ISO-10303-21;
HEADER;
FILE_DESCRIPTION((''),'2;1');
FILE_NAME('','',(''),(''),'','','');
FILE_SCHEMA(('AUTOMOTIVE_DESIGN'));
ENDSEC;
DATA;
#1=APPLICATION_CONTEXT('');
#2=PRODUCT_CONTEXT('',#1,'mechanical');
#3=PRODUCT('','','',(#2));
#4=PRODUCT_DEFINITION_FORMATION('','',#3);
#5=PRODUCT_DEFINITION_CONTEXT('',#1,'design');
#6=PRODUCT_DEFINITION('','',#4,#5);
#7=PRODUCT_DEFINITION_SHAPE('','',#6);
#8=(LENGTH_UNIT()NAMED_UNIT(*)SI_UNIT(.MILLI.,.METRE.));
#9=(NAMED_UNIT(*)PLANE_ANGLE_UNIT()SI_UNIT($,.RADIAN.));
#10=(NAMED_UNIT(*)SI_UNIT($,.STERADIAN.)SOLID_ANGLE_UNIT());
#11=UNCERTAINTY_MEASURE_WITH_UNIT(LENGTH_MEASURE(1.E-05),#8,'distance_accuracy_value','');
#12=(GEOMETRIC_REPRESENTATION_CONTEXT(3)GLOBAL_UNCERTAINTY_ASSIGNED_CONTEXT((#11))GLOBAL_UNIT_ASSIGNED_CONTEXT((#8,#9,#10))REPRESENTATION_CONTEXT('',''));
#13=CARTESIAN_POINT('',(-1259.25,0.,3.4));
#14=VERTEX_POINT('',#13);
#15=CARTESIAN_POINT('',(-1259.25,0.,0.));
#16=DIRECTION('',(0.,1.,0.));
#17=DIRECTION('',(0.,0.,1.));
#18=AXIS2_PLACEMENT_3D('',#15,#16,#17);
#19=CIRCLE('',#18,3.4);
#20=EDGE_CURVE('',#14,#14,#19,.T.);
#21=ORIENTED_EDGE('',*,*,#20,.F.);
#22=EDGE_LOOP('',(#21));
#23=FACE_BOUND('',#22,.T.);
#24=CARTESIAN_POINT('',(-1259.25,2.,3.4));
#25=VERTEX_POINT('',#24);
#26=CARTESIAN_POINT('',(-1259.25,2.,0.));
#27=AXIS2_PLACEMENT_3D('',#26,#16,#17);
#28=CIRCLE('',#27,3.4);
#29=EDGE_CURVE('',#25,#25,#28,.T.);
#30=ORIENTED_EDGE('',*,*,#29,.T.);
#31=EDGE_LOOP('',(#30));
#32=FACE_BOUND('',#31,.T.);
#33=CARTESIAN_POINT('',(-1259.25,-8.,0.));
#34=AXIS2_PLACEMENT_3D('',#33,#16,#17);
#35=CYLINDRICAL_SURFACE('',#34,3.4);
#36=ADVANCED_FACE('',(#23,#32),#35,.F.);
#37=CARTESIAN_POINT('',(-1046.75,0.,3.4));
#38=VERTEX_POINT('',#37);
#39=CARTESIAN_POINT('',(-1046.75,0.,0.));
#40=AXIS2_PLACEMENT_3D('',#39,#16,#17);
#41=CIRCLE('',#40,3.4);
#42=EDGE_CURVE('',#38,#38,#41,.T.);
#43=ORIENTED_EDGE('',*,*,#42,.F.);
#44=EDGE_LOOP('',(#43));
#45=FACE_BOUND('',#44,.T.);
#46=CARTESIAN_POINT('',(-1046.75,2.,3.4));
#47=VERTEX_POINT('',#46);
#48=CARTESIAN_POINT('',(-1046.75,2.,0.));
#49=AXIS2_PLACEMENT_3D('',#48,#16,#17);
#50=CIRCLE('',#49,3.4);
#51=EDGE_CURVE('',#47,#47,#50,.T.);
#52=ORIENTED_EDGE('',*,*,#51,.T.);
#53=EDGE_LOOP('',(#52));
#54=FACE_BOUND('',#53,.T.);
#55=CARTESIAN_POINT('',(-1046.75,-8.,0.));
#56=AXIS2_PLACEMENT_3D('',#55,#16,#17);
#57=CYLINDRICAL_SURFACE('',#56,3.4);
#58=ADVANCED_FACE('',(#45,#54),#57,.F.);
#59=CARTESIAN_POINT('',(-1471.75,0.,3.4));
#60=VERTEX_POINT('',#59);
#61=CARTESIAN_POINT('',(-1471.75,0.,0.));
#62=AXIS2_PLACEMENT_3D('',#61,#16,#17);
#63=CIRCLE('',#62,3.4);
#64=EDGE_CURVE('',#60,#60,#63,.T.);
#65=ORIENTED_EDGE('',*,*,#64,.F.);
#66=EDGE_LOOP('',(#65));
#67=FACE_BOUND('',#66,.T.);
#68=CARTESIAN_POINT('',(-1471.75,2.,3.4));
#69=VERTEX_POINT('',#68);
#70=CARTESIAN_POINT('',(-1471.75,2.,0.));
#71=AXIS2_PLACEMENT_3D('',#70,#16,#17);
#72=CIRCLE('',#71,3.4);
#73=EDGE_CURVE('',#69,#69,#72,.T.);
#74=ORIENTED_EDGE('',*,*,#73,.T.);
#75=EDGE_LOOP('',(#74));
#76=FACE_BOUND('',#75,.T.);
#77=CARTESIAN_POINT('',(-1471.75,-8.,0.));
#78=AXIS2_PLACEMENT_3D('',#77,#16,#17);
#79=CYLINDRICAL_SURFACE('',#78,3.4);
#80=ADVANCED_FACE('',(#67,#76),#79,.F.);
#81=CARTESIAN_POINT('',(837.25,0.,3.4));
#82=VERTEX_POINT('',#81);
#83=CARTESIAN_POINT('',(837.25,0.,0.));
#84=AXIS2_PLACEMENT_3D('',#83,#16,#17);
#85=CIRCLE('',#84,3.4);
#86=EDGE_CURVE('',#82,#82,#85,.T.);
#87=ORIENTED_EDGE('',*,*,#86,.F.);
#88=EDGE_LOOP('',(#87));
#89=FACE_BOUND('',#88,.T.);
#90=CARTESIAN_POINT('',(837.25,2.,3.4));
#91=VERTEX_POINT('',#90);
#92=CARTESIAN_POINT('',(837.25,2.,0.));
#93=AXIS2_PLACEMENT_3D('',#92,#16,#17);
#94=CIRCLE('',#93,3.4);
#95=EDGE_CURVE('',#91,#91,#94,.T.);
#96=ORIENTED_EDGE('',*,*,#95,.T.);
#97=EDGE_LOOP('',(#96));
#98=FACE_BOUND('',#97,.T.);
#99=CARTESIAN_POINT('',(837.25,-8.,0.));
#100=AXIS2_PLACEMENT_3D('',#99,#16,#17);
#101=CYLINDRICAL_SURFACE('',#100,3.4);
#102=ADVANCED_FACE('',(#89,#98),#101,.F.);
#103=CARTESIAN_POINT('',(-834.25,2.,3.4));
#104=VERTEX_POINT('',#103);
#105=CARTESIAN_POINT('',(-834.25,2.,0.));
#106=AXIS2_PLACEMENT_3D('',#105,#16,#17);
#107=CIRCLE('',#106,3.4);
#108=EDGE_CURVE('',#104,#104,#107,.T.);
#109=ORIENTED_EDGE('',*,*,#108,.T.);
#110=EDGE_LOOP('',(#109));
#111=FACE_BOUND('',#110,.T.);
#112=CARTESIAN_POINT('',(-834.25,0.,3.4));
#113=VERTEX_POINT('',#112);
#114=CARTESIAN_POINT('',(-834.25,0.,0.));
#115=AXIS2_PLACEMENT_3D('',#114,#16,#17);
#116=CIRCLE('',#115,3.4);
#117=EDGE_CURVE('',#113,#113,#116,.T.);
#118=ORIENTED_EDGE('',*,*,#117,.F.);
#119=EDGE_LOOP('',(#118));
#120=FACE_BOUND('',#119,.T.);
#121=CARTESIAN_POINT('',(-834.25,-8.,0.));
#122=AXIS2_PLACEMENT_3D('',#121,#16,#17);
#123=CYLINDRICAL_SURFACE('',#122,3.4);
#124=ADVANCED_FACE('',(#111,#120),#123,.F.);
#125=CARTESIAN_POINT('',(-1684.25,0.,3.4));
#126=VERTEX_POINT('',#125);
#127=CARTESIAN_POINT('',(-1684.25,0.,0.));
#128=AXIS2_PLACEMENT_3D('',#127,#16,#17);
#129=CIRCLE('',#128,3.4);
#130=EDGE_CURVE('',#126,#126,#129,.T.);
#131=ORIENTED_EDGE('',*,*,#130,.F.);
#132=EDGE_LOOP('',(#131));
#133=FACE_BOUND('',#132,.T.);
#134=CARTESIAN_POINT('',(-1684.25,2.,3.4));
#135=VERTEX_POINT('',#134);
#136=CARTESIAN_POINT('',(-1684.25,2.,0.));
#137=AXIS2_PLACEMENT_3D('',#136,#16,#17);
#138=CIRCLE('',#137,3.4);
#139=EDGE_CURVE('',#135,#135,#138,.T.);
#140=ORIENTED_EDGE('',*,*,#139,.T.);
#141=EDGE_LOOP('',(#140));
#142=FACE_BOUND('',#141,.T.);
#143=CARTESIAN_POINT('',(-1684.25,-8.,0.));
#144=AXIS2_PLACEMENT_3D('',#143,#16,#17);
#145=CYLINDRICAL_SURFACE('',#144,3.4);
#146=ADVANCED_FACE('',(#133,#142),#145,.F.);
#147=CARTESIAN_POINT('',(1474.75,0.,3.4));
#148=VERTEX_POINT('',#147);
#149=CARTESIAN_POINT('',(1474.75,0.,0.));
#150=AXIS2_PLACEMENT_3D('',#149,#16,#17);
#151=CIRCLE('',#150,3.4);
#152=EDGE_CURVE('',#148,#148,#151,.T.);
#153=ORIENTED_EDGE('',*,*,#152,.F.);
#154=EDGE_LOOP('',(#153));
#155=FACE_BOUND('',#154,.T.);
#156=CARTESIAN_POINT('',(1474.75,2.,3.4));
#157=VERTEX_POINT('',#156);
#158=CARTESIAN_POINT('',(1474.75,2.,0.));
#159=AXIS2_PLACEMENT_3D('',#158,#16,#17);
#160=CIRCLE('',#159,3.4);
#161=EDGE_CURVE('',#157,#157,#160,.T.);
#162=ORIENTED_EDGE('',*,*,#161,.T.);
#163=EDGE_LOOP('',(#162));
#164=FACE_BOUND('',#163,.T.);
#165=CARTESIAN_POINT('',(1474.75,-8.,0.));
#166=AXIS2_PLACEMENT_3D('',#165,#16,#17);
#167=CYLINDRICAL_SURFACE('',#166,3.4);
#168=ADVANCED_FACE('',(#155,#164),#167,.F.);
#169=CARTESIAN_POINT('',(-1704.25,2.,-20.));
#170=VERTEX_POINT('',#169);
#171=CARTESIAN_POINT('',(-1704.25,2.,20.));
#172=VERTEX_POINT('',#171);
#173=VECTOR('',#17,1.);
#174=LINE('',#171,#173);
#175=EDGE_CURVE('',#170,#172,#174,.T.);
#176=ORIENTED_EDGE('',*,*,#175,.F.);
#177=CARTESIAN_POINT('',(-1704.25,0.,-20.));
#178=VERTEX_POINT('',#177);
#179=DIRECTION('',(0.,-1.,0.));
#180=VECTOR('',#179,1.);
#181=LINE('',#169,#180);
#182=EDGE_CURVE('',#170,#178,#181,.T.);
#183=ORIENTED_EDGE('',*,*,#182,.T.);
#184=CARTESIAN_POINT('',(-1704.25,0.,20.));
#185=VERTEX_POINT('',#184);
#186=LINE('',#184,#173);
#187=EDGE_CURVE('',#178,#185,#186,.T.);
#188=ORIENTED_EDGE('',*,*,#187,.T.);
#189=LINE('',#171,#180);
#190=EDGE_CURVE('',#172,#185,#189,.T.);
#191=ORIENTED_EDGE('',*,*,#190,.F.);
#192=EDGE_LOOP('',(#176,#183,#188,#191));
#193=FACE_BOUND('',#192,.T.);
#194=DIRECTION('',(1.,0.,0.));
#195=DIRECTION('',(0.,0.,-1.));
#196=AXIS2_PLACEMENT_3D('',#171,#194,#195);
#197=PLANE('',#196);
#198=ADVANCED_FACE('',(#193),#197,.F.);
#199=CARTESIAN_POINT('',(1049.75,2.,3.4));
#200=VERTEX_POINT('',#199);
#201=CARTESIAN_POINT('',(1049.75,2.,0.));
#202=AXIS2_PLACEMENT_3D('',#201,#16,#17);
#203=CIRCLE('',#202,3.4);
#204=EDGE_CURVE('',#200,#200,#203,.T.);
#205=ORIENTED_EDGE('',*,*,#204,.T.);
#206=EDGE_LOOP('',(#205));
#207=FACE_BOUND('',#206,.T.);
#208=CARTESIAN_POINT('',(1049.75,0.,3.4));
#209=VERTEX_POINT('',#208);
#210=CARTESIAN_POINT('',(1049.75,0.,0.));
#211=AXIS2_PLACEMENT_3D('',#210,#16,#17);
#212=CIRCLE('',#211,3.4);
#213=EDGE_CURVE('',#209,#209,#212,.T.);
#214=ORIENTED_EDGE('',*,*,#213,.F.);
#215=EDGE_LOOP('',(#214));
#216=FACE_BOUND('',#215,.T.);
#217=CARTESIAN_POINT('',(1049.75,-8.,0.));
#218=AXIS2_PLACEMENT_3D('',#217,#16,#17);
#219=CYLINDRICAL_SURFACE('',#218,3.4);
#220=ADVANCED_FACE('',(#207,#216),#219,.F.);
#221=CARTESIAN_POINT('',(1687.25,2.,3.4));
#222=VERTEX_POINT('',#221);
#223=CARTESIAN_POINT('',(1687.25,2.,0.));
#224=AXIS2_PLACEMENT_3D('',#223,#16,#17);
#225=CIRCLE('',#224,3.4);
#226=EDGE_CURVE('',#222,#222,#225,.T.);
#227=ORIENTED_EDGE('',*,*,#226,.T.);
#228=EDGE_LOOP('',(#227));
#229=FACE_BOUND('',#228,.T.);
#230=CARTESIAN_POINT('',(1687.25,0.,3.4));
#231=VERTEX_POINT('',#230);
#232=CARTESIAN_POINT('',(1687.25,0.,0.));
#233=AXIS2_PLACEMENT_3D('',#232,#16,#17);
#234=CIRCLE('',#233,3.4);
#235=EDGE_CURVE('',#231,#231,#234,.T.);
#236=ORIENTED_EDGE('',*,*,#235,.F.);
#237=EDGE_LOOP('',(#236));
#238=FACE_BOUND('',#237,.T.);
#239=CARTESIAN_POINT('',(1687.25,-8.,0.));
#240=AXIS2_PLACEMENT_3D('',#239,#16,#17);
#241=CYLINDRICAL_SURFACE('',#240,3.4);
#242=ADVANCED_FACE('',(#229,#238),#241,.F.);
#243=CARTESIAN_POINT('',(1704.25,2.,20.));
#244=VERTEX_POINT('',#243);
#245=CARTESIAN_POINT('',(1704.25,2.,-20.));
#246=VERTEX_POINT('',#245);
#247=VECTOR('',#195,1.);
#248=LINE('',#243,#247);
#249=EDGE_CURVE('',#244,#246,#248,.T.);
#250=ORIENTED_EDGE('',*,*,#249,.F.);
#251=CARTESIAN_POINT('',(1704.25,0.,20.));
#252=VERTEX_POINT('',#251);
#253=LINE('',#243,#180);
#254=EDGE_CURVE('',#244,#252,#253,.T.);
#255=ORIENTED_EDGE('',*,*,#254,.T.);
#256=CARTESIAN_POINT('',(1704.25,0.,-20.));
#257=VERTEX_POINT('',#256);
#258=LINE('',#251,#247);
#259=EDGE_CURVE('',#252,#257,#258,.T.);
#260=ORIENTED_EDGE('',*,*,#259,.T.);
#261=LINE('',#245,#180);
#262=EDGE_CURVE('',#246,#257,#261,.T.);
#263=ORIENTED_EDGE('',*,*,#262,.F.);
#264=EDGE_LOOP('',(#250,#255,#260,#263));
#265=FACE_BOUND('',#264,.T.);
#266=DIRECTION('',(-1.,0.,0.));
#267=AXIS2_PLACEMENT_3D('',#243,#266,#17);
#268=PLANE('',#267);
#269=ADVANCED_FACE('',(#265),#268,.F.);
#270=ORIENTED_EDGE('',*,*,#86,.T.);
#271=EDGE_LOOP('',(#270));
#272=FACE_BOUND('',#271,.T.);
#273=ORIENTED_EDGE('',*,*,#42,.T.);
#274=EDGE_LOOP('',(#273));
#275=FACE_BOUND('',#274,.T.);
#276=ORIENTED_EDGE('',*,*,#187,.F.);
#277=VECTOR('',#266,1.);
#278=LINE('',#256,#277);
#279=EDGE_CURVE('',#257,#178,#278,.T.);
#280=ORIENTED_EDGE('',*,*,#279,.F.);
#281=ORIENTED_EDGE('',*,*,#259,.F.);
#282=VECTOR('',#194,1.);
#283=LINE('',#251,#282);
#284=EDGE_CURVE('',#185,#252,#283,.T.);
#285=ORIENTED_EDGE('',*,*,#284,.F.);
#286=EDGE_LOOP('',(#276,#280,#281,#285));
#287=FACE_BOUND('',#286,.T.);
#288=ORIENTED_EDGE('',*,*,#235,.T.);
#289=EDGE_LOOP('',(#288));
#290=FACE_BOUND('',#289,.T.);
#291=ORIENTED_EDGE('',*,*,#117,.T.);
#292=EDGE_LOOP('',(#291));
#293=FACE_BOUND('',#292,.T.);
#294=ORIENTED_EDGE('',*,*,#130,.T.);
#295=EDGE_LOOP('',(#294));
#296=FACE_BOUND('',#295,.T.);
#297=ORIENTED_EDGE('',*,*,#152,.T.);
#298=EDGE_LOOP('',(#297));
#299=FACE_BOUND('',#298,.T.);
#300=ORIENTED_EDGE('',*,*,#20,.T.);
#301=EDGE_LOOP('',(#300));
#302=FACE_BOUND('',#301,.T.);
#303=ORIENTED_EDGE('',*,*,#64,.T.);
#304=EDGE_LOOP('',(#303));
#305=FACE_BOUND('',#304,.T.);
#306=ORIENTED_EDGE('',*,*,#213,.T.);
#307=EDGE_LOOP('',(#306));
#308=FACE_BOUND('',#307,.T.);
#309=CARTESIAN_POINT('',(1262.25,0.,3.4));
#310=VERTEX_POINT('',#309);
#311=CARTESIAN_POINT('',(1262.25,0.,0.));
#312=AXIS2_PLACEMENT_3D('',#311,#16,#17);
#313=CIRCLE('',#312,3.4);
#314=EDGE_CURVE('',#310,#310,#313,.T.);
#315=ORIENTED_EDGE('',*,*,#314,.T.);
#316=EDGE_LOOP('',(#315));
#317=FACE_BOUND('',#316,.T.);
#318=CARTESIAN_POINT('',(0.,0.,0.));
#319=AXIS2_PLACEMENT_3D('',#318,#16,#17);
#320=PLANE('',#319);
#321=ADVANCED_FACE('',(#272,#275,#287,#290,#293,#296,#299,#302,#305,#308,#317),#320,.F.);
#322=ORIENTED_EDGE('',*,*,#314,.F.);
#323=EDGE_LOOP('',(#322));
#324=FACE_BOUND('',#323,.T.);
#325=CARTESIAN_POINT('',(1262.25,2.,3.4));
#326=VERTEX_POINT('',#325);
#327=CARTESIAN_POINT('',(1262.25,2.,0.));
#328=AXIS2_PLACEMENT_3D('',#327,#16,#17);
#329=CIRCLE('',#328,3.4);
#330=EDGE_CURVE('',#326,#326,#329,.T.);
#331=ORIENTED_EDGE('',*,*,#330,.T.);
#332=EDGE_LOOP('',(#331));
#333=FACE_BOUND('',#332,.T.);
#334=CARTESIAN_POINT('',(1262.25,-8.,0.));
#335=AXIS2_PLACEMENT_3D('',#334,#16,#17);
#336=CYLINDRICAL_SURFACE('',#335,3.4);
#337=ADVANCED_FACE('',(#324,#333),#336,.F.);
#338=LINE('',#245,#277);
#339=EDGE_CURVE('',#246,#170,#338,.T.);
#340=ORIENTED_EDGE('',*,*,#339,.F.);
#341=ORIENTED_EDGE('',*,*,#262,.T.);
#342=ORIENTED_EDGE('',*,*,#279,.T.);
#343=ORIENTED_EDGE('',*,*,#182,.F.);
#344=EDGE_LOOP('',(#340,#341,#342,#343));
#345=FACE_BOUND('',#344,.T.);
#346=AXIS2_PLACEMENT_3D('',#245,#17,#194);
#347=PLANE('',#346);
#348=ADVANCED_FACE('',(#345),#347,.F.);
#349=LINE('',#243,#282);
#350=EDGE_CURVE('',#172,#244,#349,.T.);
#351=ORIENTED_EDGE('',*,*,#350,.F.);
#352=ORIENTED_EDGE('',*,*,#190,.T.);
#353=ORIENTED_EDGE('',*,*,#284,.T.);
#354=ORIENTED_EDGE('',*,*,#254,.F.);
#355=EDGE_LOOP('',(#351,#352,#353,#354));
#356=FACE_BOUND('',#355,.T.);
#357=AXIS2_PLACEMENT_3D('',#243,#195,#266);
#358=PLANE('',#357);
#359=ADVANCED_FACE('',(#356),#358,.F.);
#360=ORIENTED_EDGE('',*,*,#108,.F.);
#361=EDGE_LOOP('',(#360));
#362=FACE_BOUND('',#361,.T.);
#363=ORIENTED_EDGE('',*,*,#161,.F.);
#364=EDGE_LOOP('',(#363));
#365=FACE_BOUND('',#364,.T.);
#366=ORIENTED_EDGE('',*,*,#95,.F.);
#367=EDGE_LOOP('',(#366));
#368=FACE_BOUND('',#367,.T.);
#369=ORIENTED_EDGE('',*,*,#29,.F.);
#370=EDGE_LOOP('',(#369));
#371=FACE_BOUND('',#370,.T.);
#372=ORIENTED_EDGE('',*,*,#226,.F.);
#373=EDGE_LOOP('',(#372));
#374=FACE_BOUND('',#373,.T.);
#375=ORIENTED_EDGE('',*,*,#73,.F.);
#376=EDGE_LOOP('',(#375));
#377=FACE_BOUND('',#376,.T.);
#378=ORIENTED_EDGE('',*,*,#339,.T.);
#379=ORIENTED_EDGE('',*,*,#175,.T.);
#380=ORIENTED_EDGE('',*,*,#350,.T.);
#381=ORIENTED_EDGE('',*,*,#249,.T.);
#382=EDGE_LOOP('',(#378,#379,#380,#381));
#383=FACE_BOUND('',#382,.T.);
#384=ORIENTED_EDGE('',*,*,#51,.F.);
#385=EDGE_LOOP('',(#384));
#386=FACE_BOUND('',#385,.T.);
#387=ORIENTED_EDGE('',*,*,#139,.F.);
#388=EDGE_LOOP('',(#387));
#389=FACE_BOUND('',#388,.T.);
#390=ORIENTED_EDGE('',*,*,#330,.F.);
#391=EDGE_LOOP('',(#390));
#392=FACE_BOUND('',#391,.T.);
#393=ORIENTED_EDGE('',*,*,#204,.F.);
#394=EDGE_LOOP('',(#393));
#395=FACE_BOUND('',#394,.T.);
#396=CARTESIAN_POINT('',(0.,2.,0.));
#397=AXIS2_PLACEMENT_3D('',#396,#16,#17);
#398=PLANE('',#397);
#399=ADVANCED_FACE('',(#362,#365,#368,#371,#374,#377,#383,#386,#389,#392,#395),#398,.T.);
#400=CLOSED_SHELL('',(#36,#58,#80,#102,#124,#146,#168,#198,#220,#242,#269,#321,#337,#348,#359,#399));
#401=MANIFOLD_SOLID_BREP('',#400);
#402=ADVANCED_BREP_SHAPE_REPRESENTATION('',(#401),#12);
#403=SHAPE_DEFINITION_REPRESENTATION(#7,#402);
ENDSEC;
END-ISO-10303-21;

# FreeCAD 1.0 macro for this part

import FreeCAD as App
import Part
import Sketcher

V = App.Vector
Q = App.Units.Quantity


def add_polygon(sketch, points):
    """Adds a closed chain of lines whose ends are joined by coincident constraints."""
    first, n = sketch.GeometryCount, len(points)
    for a, b in zip(points, points[1:] + points[:1]):
        sketch.addGeometry(Part.LineSegment(App.Vector(*a, 0), App.Vector(*b, 0)), False)
    for i in range(n):
        sketch.addConstraint(Sketcher.Constraint("Coincident", first + i, 2, first + (i + 1) % n, 1))

doc = App.newDocument("Part")
body = doc.addObject("PartDesign::Body", "Body")

sketch1 = doc.addObject("Sketcher::SketchObject", "Sketch")
body.addObject(sketch1)
sketch1.AttachmentSupport = (doc.XZ_Plane, [""])
sketch1.MapMode = "FlatFace"
add_polygon(sketch1, [(-1704, -20), (-1704, 20), (1704, 20), (1704, -20)])
sketch1.addConstraint(Sketcher.Constraint("Vertical", 0))
sketch1.addConstraint(Sketcher.Constraint("Horizontal", 1))
sketch1.addConstraint(Sketcher.Constraint("Vertical", 2))
sketch1.addConstraint(Sketcher.Constraint("Horizontal", 3))
sketch1.addConstraint(Sketcher.Constraint("Symmetric", 0, 2, 2, 2, -1, 1))
sketch1.addConstraint(Sketcher.Constraint("DistanceY", 0, 1, 0, 2, Q("40 mm")))
sketch1.addConstraint(Sketcher.Constraint("DistanceX", 1, 1, 1, 2, Q("3408.5 mm")))
pad1 = doc.addObject("PartDesign::Pad", "Pad")
body.addObject(pad1)
pad1.Profile = sketch1
pad1.Length = 2
pad1.Reversed = True

sketch2 = doc.addObject("Sketcher::SketchObject", "Sketch001")
body.addObject(sketch2)
sketch2.AttachmentSupport = (doc.XZ_Plane, [""])
sketch2.MapMode = "FlatFace"
sketch2.AttachmentOffset = App.Placement(V(0, 0, -2), App.Rotation())
sketch2.addGeometry(Part.Circle(V(-1684.2, 0, 0), V(0, 0, 1), 3.4), False)
sketch2.addGeometry(Part.Circle(V(-1471.8, 0, 0), V(0, 0, 1), 3.4), False)
sketch2.addGeometry(Part.Circle(V(-1259.2, 0, 0), V(0, 0, 1), 3.4), False)
sketch2.addGeometry(Part.Circle(V(-1046.8, 0, 0), V(0, 0, 1), 3.4), False)
sketch2.addGeometry(Part.Circle(V(-834.2, 0, 0), V(0, 0, 1), 3.4), False)
sketch2.addGeometry(Part.Circle(V(1687.2, 0, 0), V(0, 0, 1), 3.4), False)
sketch2.addGeometry(Part.Circle(V(1474.8, 0, 0), V(0, 0, 1), 3.4), False)
sketch2.addGeometry(Part.Circle(V(1262.2, 0, 0), V(0, 0, 1), 3.4), False)
sketch2.addGeometry(Part.Circle(V(1049.8, 0, 0), V(0, 0, 1), 3.4), False)
sketch2.addGeometry(Part.Circle(V(837.2, 0, 0), V(0, 0, 1), 3.4), False)
sketch2.addConstraint(Sketcher.Constraint("Equal", 0, 1))
sketch2.addConstraint(Sketcher.Constraint("Equal", 1, 2))
sketch2.addConstraint(Sketcher.Constraint("Equal", 2, 3))
sketch2.addConstraint(Sketcher.Constraint("Equal", 3, 4))
sketch2.addConstraint(Sketcher.Constraint("Equal", 4, 5))
sketch2.addConstraint(Sketcher.Constraint("Equal", 5, 6))
sketch2.addConstraint(Sketcher.Constraint("Equal", 6, 7))
sketch2.addConstraint(Sketcher.Constraint("Equal", 7, 8))
sketch2.addConstraint(Sketcher.Constraint("Equal", 8, 9))
sketch2.addConstraint(Sketcher.Constraint("PointOnObject", 0, 3, -1))
sketch2.addConstraint(Sketcher.Constraint("PointOnObject", 1, 3, -1))
sketch2.addConstraint(Sketcher.Constraint("PointOnObject", 2, 3, -1))
sketch2.addConstraint(Sketcher.Constraint("PointOnObject", 3, 3, -1))
sketch2.addConstraint(Sketcher.Constraint("PointOnObject", 4, 3, -1))
sketch2.addConstraint(Sketcher.Constraint("PointOnObject", 5, 3, -1))
sketch2.addConstraint(Sketcher.Constraint("PointOnObject", 6, 3, -1))
sketch2.addConstraint(Sketcher.Constraint("PointOnObject", 7, 3, -1))
sketch2.addConstraint(Sketcher.Constraint("PointOnObject", 8, 3, -1))
sketch2.addConstraint(Sketcher.Constraint("PointOnObject", 9, 3, -1))
sketch2.addConstraint(Sketcher.Constraint("Diameter", 0, Q("6.8 mm")))
sketch2.addConstraint(Sketcher.Constraint("DistanceX", 0, 3, 2, 3, Q("425 mm")))
sketch2.addConstraint(Sketcher.Constraint("DistanceX", 1, 3, 3, 3, Q("425 mm")))
sketch2.addConstraint(Sketcher.Constraint("DistanceX", 2, 3, 4, 3, Q("425 mm")))
sketch2.addConstraint(Sketcher.Constraint("DistanceX", 3, 3, 5, 3, Q("2734 mm")))
sketch2.addConstraint(Sketcher.Constraint("DistanceX", 4, 3, 6, 3, Q("2309 mm")))
sketch2.addConstraint(Sketcher.Constraint("DistanceX", 7, 3, 5, 3, Q("425 mm")))
sketch2.addConstraint(Sketcher.Constraint("DistanceX", 8, 3, 6, 3, Q("425 mm")))
sketch2.addConstraint(Sketcher.Constraint("DistanceX", 9, 3, 7, 3, Q("425 mm")))
sketch2.addConstraint(Sketcher.Constraint("DistanceX", 0, 3, 1, 3, Q("212.5 mm")))
sketch2.addConstraint(Sketcher.Constraint("DistanceX", 0, 3, -1, 1, Q("1684.25 mm")))
pocket1 = doc.addObject("PartDesign::Pocket", "Pocket")
body.addObject(pocket1)
pocket1.Profile = sketch2
pocket1.Length = 10
pocket1.Reversed = True

doc.recompute()
